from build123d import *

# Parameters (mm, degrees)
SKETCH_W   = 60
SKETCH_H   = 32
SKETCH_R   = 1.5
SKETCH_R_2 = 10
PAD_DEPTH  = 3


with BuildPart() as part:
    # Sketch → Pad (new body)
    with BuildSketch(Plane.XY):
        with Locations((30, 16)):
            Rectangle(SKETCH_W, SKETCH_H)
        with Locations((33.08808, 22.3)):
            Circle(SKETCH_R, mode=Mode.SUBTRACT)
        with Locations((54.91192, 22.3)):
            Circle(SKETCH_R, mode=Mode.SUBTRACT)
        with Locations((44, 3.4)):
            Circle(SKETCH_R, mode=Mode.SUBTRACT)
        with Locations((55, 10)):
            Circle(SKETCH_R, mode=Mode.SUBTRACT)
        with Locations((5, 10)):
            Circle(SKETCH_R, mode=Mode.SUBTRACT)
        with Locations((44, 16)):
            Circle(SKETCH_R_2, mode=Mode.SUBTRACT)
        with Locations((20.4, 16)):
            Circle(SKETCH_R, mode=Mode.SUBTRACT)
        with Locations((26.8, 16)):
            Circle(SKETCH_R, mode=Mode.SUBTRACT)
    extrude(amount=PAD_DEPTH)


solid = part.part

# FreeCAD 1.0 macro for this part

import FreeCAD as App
import Part
import Sketcher


def add_polygon(sketch, points):
    """Adds a closed chain of lines whose ends are joined by coincident constraints."""
    first, n = sketch.GeometryCount, len(points)
    for a, b in zip(points, points[1:] + points[:1]):
        sketch.addGeometry(Part.LineSegment(App.Vector(*a, 0), App.Vector(*b, 0)), False)
    for i in range(n):
        sketch.addConstraint(Sketcher.Constraint("Coincident", first + i, 2, first + (i + 1) % n, 1))

doc = App.newDocument("Part")
body = doc.addObject("PartDesign::Body", "Body")

# Sketch on XY plane
sketch1 = body.newObject("Sketcher::SketchObject", "Sketch")
sketch1.AttachmentSupport = (doc.getObject("XY_Plane"), [""])
sketch1.MapMode = "FlatFace"
add_polygon(sketch1, [(0, 32), (0, 0), (60, 0), (60, 32)])  # lines 0-3
sketch1.addGeometry(Part.Circle(App.Vector(5, 10, 0), App.Vector(0, 0, 1), 1.5), False)  # 4
sketch1.addGeometry(Part.Circle(App.Vector(44, 3.4, 0), App.Vector(0, 0, 1), 1.5), False)  # 5
sketch1.addGeometry(Part.Circle(App.Vector(55, 10, 0), App.Vector(0, 0, 1), 1.5), False)  # 6
sketch1.addGeometry(Part.Circle(App.Vector(20.4, 16, 0), App.Vector(0, 0, 1), 1.5), False)  # 7
sketch1.addGeometry(Part.Circle(App.Vector(26.8, 16, 0), App.Vector(0, 0, 1), 1.5), False)  # 8
sketch1.addGeometry(Part.Circle(App.Vector(44, 16, 0), App.Vector(0, 0, 1), 10), False)  # 9
sketch1.addGeometry(Part.Circle(App.Vector(33.1, 22.3, 0), App.Vector(0, 0, 1), 1.5), False)  # 10
sketch1.addGeometry(Part.Circle(App.Vector(54.9, 22.3, 0), App.Vector(0, 0, 1), 1.5), False)  # 11
sketch1.addConstraint([
    Sketcher.Constraint("Vertical", 0),
    Sketcher.Constraint("Horizontal", 1),
    Sketcher.Constraint("Vertical", 2),
    Sketcher.Constraint("Horizontal", 3),
    Sketcher.Constraint("Coincident", 0, 2, -1, 1),
    Sketcher.Constraint("Equal", 4, 5),
    Sketcher.Constraint("Equal", 5, 6),
    Sketcher.Constraint("Equal", 6, 7),
    Sketcher.Constraint("Equal", 7, 8),
    Sketcher.Constraint("Equal", 8, 10),
    Sketcher.Constraint("Equal", 10, 11),
    Sketcher.Constraint("Horizontal", 4, 3, 6, 3),
    Sketcher.Constraint("Horizontal", 7, 3, 8, 3),
    Sketcher.Constraint("Horizontal", 8, 3, 9, 3),
    Sketcher.Constraint("Horizontal", 10, 3, 11, 3),
    Sketcher.Constraint("Vertical", 5, 3, 9, 3),
    Sketcher.Constraint("Diameter", 4, 3.0),
    Sketcher.Constraint("Diameter", 9, 20.0),
    Sketcher.Constraint("DistanceX", 1, 1, 1, 2, 60.0),
    Sketcher.Constraint("DistanceY", 0, 2, 0, 1, 32.0),
    Sketcher.Constraint("DistanceX", -1, 1, 4, 3, 5.0),
    Sketcher.Constraint("DistanceY", -1, 1, 4, 3, 10.0),
    Sketcher.Constraint("DistanceX", -1, 1, 5, 3, 44.0),
    Sketcher.Constraint("DistanceX", -1, 1, 6, 3, 55.0),
    Sketcher.Constraint("DistanceY", -1, 1, 7, 3, 16.0),
    Sketcher.Constraint("DistanceY", -1, 1, 5, 3, 3.4),
    Sketcher.Constraint("DistanceX", -1, 1, 7, 3, 20.4),
    Sketcher.Constraint("DistanceX", -1, 1, 8, 3, 26.8),
    Sketcher.Constraint("DistanceY", -1, 1, 10, 3, 22.3),
    Sketcher.Constraint("DistanceX", -1, 1, 10, 3, 33.08808),
    Sketcher.Constraint("DistanceX", -1, 1, 11, 3, 54.91192),
])
pad1 = body.newObject("PartDesign::Pad", "Pad")
pad1.Profile = sketch1
pad1.Length = 3

doc.recompute()
